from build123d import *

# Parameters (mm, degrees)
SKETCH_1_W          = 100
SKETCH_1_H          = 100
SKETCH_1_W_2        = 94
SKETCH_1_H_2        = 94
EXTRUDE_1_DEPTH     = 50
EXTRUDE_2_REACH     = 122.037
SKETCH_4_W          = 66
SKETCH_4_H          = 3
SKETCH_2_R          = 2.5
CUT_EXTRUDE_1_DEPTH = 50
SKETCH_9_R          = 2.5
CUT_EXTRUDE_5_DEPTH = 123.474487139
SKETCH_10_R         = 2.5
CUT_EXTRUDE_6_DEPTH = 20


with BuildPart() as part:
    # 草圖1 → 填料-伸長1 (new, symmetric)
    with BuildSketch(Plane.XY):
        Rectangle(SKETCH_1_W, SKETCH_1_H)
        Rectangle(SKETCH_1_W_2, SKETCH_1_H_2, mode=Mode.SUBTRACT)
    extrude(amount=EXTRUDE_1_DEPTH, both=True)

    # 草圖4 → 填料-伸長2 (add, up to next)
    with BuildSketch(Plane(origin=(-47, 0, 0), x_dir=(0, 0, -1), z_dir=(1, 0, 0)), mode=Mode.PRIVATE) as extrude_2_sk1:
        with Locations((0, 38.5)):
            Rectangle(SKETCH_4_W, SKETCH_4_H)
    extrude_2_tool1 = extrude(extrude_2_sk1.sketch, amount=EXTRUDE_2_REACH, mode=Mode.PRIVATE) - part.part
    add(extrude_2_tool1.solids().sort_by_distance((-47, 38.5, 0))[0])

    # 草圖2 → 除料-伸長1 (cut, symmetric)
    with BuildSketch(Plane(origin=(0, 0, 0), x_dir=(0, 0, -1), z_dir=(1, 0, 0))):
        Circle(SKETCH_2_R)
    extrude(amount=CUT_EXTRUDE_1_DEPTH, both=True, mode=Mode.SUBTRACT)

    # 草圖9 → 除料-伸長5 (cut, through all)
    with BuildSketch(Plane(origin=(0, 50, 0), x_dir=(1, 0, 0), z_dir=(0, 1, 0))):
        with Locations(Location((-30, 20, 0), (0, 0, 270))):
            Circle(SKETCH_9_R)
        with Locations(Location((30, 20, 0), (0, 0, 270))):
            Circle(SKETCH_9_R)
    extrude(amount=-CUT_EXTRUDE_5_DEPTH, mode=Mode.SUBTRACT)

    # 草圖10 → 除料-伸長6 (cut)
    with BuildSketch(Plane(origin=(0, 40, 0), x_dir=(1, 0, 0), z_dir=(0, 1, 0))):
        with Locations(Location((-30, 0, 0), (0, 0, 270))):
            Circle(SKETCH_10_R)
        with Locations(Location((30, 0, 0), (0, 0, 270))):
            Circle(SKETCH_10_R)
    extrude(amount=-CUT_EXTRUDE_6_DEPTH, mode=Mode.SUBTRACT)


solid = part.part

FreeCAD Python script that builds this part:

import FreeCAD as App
import Part
import Sketcher

V = App.Vector

doc = App.newDocument("Part")
params = doc.addObject("Spreadsheet::Sheet", "Params")
for row, (alias, value) in enumerate([
    ("sketch1_width", "100 mm"),
    ("sketch1_width2", "94 mm"),
    ("pad1_length", "100 mm"),
    ("sketch2_width", "3 mm"),
    ("sketch2_height", "66 mm"),
    ("sketch3_diameter", "5 mm"),
    ("pocket1_length", "100 mm"),
    ("sketch4_diameter", "5 mm"),
    ("sketch5_diameter", "5 mm"),
    ("pocket3_length", "20 mm"),
], start=1):
    params.set(f"A{row}", alias)
    params.set(f"B{row}", "=" + value)
    params.setAlias(f"B{row}", alias)

body = doc.addObject("PartDesign::Body", "Body")

# Sketch on XY plane
sketch1 = body.newObject("Sketcher::SketchObject", "Sketch")
sketch1.AttachmentSupport = (doc.getObject("XY_Plane"), [""])
sketch1.MapMode = "FlatFace"
sketch1.addGeometry([
    Part.LineSegment(V(-50, 50, 0), V(-50, -50, 0)),  # 0
    Part.LineSegment(V(-50, -50, 0), V(50, -50, 0)),  # 1
    Part.LineSegment(V(50, -50, 0), V(50, 50, 0)),  # 2
    Part.LineSegment(V(50, 50, 0), V(-50, 50, 0)),  # 3
    Part.LineSegment(V(47, -47, 0), V(-47, -47, 0)),  # 4
    Part.LineSegment(V(-47, -47, 0), V(-47, 47, 0)),  # 5
    Part.LineSegment(V(-47, 47, 0), V(47, 47, 0)),  # 6
    Part.LineSegment(V(47, 47, 0), V(47, -47, 0)),  # 7
], False)
sketch1.addConstraint([
    Sketcher.Constraint("Coincident", 0, 2, 1, 1),
    Sketcher.Constraint("Coincident", 1, 2, 2, 1),
    Sketcher.Constraint("Coincident", 2, 2, 3, 1),
    Sketcher.Constraint("Coincident", 3, 2, 0, 1),
    Sketcher.Constraint("Coincident", 4, 2, 5, 1),
    Sketcher.Constraint("Coincident", 5, 2, 6, 1),
    Sketcher.Constraint("Coincident", 6, 2, 7, 1),
    Sketcher.Constraint("Coincident", 7, 2, 4, 1),
    Sketcher.Constraint("Vertical", 0),
    Sketcher.Constraint("Horizontal", 1),
    Sketcher.Constraint("Vertical", 2),
    Sketcher.Constraint("Horizontal", 3),
    Sketcher.Constraint("Horizontal", 4),
    Sketcher.Constraint("Vertical", 5),
    Sketcher.Constraint("Horizontal", 6),
    Sketcher.Constraint("Vertical", 7),
    Sketcher.Constraint("Symmetric", 0, 2, 2, 2, -1, 1),
    Sketcher.Constraint("Symmetric", 4, 2, 6, 2, -1, 1),
    Sketcher.Constraint("Equal", 3, 0),
    Sketcher.Constraint("Equal", 6, 5),
    Sketcher.Constraint("DistanceX", 1, 1, 1, 2, 100.0),
    Sketcher.Constraint("DistanceX", 4, 2, 4, 1, 94.0),
])
sketch1.setExpression("Constraints[20]", "Params.sketch1_width")
sketch1.setExpression("Constraints[21]", "Params.sketch1_width2")
pad1 = body.newObject("PartDesign::Pad", "Pad")
pad1.Profile = sketch1
pad1.setExpression("Length", "Params.pad1_length")
pad1.Midplane = True

# Sketch on YZ plane
sketch2 = body.newObject("Sketcher::SketchObject", "Sketch001")
sketch2.AttachmentSupport = (doc.getObject("YZ_Plane"), [""])
sketch2.MapMode = "FlatFace"
sketch2.AttachmentOffset = App.Placement(V(0, 0, -47), App.Rotation())
sketch2.addGeometry([
    Part.LineSegment(V(40, 33, 0), V(37, 33, 0)),
    Part.LineSegment(V(37, 33, 0), V(37, -33, 0)),
    Part.LineSegment(V(37, -33, 0), V(40, -33, 0)),
    Part.LineSegment(V(40, -33, 0), V(40, 33, 0)),
], False)
sketch2.addConstraint([
    Sketcher.Constraint("Coincident", 0, 2, 1, 1),
    Sketcher.Constraint("Coincident", 1, 2, 2, 1),
    Sketcher.Constraint("Coincident", 2, 2, 3, 1),
    Sketcher.Constraint("Coincident", 3, 2, 0, 1),
    Sketcher.Constraint("Horizontal", 0),
    Sketcher.Constraint("Vertical", 1),
    Sketcher.Constraint("Horizontal", 2),
    Sketcher.Constraint("Vertical", 3),
    Sketcher.Constraint("DistanceX", 0, 2, 0, 1, 3.0),
    Sketcher.Constraint("DistanceY", 1, 2, 1, 1, 66.0),
    Sketcher.Constraint("DistanceX", -1, 1, 0, 2, 37.0),
    Sketcher.Constraint("DistanceY", -1, 1, 0, 2, 33.0),
])
sketch2.setExpression("Constraints[8]", "Params.sketch2_width")
sketch2.setExpression("Constraints[9]", "Params.sketch2_height")
pad2 = body.newObject("PartDesign::Pad", "Pad001")
pad2.Profile = sketch2
pad2.Type = "UpToFirst"

# Sketch on YZ plane
sketch3 = body.newObject("Sketcher::SketchObject", "Sketch002")
sketch3.AttachmentSupport = (doc.getObject("YZ_Plane"), [""])
sketch3.MapMode = "FlatFace"
sketch3.addGeometry(Part.Circle(V(0, 0, 0), V(0, 0, 1), 2.5), False)
sketch3.addConstraint([
    Sketcher.Constraint("Coincident", 0, 3, -1, 1),
    Sketcher.Constraint("Diameter", 0, 5.0),
])
sketch3.setExpression("Constraints[1]", "Params.sketch3_diameter")
pocket1 = body.newObject("PartDesign::Pocket", "Pocket")
pocket1.Profile = sketch3
pocket1.setExpression("Length", "Params.pocket1_length")
pocket1.Midplane = True

# Sketch on XZ plane
sketch4 = body.newObject("Sketcher::SketchObject", "Sketch003")
sketch4.AttachmentSupport = (doc.getObject("XZ_Plane"), [""])
sketch4.MapMode = "FlatFace"
sketch4.AttachmentOffset = App.Placement(V(0, 0, -50), App.Rotation())
sketch4.addGeometry([
    Part.Circle(V(-30, -20, 0), V(0, 0, 1), 2.5),
    Part.Circle(V(30, -20, 0), V(0, 0, 1), 2.5),
], False)
sketch4.addConstraint([
    Sketcher.Constraint("Equal", 0, 1),
    Sketcher.Constraint("Symmetric", 0, 3, 1, 3, -2),
    Sketcher.Constraint("Diameter", 0, 5.0),
    Sketcher.Constraint("DistanceX", 0, 3, -1, 1, 30.0),
    Sketcher.Constraint("DistanceY", 0, 3, -1, 1, 20.0),
])
sketch4.setExpression("Constraints[2]", "Params.sketch4_diameter")
pocket2 = body.newObject("PartDesign::Pocket", "Pocket001")
pocket2.Profile = sketch4
pocket2.Type = "ThroughAll"
pocket2.Reversed = True

# Sketch on XZ plane
sketch5 = body.newObject("Sketcher::SketchObject", "Sketch004")
sketch5.AttachmentSupport = (doc.getObject("XZ_Plane"), [""])
sketch5.MapMode = "FlatFace"
sketch5.AttachmentOffset = App.Placement(V(0, 0, -40), App.Rotation())
sketch5.addGeometry([
    Part.Circle(V(-30, 0, 0), V(0, 0, 1), 2.5),
    Part.Circle(V(30, 0, 0), V(0, 0, 1), 2.5),
], False)
sketch5.addConstraint([
    Sketcher.Constraint("Equal", 0, 1),
    Sketcher.Constraint("Symmetric", 0, 3, 1, 3, -1, 1),
    Sketcher.Constraint("PointOnObject", 0, 3, -1),
    Sketcher.Constraint("Diameter", 0, 5.0),
    Sketcher.Constraint("DistanceX", 0, 3, -1, 1, 30.0),
])
sketch5.setExpression("Constraints[3]", "Params.sketch5_diameter")
pocket3 = body.newObject("PartDesign::Pocket", "Pocket002")
pocket3.Profile = sketch5
pocket3.setExpression("Length", "Params.pocket3_length")
pocket3.Reversed = True

doc.recompute()
